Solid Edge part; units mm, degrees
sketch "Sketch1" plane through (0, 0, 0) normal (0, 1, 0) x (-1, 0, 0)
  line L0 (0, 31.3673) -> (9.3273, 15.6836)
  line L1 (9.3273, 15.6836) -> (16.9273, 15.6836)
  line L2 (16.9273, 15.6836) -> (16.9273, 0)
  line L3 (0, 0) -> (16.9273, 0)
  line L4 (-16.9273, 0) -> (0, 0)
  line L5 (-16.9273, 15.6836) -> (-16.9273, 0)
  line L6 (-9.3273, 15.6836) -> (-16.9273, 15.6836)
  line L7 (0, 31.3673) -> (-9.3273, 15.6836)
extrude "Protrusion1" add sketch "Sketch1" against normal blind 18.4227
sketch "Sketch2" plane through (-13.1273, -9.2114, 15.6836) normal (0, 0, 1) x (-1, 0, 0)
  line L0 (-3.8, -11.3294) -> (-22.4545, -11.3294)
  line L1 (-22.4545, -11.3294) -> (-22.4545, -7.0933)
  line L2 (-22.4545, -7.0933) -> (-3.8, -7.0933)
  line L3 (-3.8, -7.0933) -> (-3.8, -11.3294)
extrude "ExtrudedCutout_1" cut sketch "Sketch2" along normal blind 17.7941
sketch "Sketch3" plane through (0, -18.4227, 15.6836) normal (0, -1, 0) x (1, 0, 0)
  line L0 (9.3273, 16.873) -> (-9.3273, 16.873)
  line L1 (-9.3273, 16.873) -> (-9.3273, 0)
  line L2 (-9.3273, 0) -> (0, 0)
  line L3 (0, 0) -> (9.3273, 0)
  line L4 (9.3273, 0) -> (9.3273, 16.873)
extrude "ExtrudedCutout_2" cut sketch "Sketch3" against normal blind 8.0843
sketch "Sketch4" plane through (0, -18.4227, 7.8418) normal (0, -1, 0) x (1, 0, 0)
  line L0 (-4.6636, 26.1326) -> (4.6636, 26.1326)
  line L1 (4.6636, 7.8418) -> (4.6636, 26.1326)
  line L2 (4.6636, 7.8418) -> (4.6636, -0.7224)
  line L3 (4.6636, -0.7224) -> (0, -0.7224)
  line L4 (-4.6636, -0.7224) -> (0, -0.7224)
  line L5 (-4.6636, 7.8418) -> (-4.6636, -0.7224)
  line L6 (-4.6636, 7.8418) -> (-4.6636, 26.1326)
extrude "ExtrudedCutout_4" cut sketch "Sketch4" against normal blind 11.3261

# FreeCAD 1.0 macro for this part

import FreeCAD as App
import Part
import Sketcher
Q = App.Units.Quantity

doc = App.newDocument("Part")
body = doc.addObject("PartDesign::Body", "Body")

# Sketch on XZ plane
sketch1 = body.newObject("Sketcher::SketchObject", "Sketch")
sketch1.AttachmentSupport = (doc.getObject("XZ_Plane"), [""])
sketch1.MapMode = "FlatFace"
sketch1.addGeometry(Part.LineSegment(App.Vector(-9, 16, 0), App.Vector(0, 31, 0)), False)
sketch1.addGeometry(Part.LineSegment(App.Vector(0, 31, 0), App.Vector(9, 16, 0)), False)
sketch1.addGeometry(Part.LineSegment(App.Vector(9, 16, 0), App.Vector(17, 16, 0)), False)
sketch1.addGeometry(Part.LineSegment(App.Vector(17, 16, 0), App.Vector(17, 0, 0)), False)
sketch1.addGeometry(Part.LineSegment(App.Vector(17, 0, 0), App.Vector(-17, 0, 0)), False)
sketch1.addGeometry(Part.LineSegment(App.Vector(-17, 0, 0), App.Vector(-17, 16, 0)), False)
sketch1.addGeometry(Part.LineSegment(App.Vector(-17, 16, 0), App.Vector(-9, 16, 0)), False)
sketch1.addConstraint(Sketcher.Constraint("Coincident", 0, 2, 1, 1))
sketch1.addConstraint(Sketcher.Constraint("Coincident", 1, 2, 2, 1))
sketch1.addConstraint(Sketcher.Constraint("Coincident", 2, 2, 3, 1))
sketch1.addConstraint(Sketcher.Constraint("Coincident", 3, 2, 4, 1))
sketch1.addConstraint(Sketcher.Constraint("Coincident", 4, 2, 5, 1))
sketch1.addConstraint(Sketcher.Constraint("Coincident", 5, 2, 6, 1))
sketch1.addConstraint(Sketcher.Constraint("Coincident", 6, 2, 0, 1))
sketch1.addConstraint(Sketcher.Constraint("Horizontal", 2))
sketch1.addConstraint(Sketcher.Constraint("Vertical", 3))
sketch1.addConstraint(Sketcher.Constraint("Horizontal", 4))
sketch1.addConstraint(Sketcher.Constraint("Vertical", 5))
sketch1.addConstraint(Sketcher.Constraint("Horizontal", 6))
sketch1.addConstraint(Sketcher.Constraint("Symmetric", 3, 2, 4, 2, -1, 1))
sketch1.addConstraint(Sketcher.Constraint("Symmetric", 1, 2, 6, 2, -2))
sketch1.addConstraint(Sketcher.Constraint("PointOnObject", 0, 2, -2))
sketch1.addConstraint(Sketcher.Constraint("DistanceX", 2, 1, 2, 2, 7.6))
sketch1.addConstraint(Sketcher.Constraint("Angle", 0, Q("59.2595 deg")))
sketch1.addConstraint(Sketcher.Constraint("DistanceX", 4, 2, 4, 1, 33.8546))
sketch1.addConstraint(Sketcher.Constraint("DistanceY", 3, 2, 3, 1, 15.6836))
pad1 = body.newObject("PartDesign::Pad", "Pad")
pad1.Profile = sketch1
pad1.Length = 18.4227

# Sketch on XY plane
sketch2 = body.newObject("Sketcher::SketchObject", "Sketch001")
sketch2.AttachmentSupport = (doc.getObject("XY_Plane"), [""])
sketch2.MapMode = "FlatFace"
sketch2.AttachmentOffset = App.Placement(App.Vector(0, 0, 15.6836), App.Rotation())
sketch2.addGeometry(Part.LineSegment(App.Vector(9.3, 2.1, 0), App.Vector(-9.3, 2.1, 0)), False)
sketch2.addGeometry(Part.LineSegment(App.Vector(-9.3, 2.1, 0), App.Vector(-9.3, -2.1, 0)), False)
sketch2.addGeometry(Part.LineSegment(App.Vector(-9.3, -2.1, 0), App.Vector(9.3, -2.1, 0)), False)
sketch2.addGeometry(Part.LineSegment(App.Vector(9.3, -2.1, 0), App.Vector(9.3, 2.1, 0)), False)
sketch2.addConstraint(Sketcher.Constraint("Coincident", 0, 2, 1, 1))
sketch2.addConstraint(Sketcher.Constraint("Coincident", 1, 2, 2, 1))
sketch2.addConstraint(Sketcher.Constraint("Coincident", 2, 2, 3, 1))
sketch2.addConstraint(Sketcher.Constraint("Coincident", 3, 2, 0, 1))
sketch2.addConstraint(Sketcher.Constraint("Horizontal", 0))
sketch2.addConstraint(Sketcher.Constraint("Vertical", 1))
sketch2.addConstraint(Sketcher.Constraint("Horizontal", 2))
sketch2.addConstraint(Sketcher.Constraint("Vertical", 3))
sketch2.addConstraint(Sketcher.Constraint("Symmetric", 0, 2, 2, 2, -1, 1))
sketch2.addConstraint(Sketcher.Constraint("DistanceY", 1, 2, 1, 1, 4.236))
sketch2.addConstraint(Sketcher.Constraint("DistanceX", 0, 2, 0, 1, 18.6545))
pocket1 = body.newObject("PartDesign::Pocket", "Pocket")
pocket1.Profile = sketch2
pocket1.Length = 17.7941
pocket1.Reversed = True

# Sketch on XZ plane
sketch3 = body.newObject("Sketcher::SketchObject", "Sketch002")
sketch3.AttachmentSupport = (doc.getObject("XZ_Plane"), [""])
sketch3.MapMode = "FlatFace"
sketch3.AttachmentOffset = App.Placement(App.Vector(0, 0, 18.4227), App.Rotation())
sketch3.addGeometry(Part.LineSegment(App.Vector(9, 16, 0), App.Vector(9, 33, 0)), False)
sketch3.addGeometry(Part.LineSegment(App.Vector(9, 33, 0), App.Vector(-9, 33, 0)), False)
sketch3.addGeometry(Part.LineSegment(App.Vector(-9, 33, 0), App.Vector(-9, 16, 0)), False)
sketch3.addGeometry(Part.LineSegment(App.Vector(-9, 16, 0), App.Vector(9, 16, 0)), False)
sketch3.addConstraint(Sketcher.Constraint("Coincident", 0, 2, 1, 1))
sketch3.addConstraint(Sketcher.Constraint("Coincident", 1, 2, 2, 1))
sketch3.addConstraint(Sketcher.Constraint("Coincident", 2, 2, 3, 1))
sketch3.addConstraint(Sketcher.Constraint("Coincident", 3, 2, 0, 1))
sketch3.addConstraint(Sketcher.Constraint("Vertical", 0))
sketch3.addConstraint(Sketcher.Constraint("Horizontal", 1))
sketch3.addConstraint(Sketcher.Constraint("Vertical", 2))
sketch3.addConstraint(Sketcher.Constraint("Horizontal", 3))
sketch3.addConstraint(Sketcher.Constraint("DistanceY", 0, 1, 0, 2, 16.873))
sketch3.addConstraint(Sketcher.Constraint("DistanceX", 1, 2, 1, 1, 18.6546))
sketch3.addConstraint(Sketcher.Constraint("DistanceX", -1, 1, 0, 2, 9.3273))
sketch3.addConstraint(Sketcher.Constraint("DistanceY", -1, 1, 0, 2, 32.5566))
pocket2 = body.newObject("PartDesign::Pocket", "Pocket001")
pocket2.Profile = sketch3
pocket2.Length = 8.0843

# Sketch on XZ plane
sketch4 = body.newObject("Sketcher::SketchObject", "Sketch003")
sketch4.AttachmentSupport = (doc.getObject("XZ_Plane"), [""])
sketch4.MapMode = "FlatFace"
sketch4.AttachmentOffset = App.Placement(App.Vector(0, 0, 18.4227), App.Rotation())
sketch4.addGeometry(Part.LineSegment(App.Vector(5, 34, 0), App.Vector(-5, 34, 0)), False)
sketch4.addGeometry(Part.LineSegment(App.Vector(-5, 34, 0), App.Vector(-5, 7, 0)), False)
sketch4.addGeometry(Part.LineSegment(App.Vector(-5, 7, 0), App.Vector(5, 7, 0)), False)
sketch4.addGeometry(Part.LineSegment(App.Vector(5, 7, 0), App.Vector(5, 34, 0)), False)
sketch4.addConstraint(Sketcher.Constraint("Coincident", 0, 2, 1, 1))
sketch4.addConstraint(Sketcher.Constraint("Coincident", 1, 2, 2, 1))
sketch4.addConstraint(Sketcher.Constraint("Coincident", 2, 2, 3, 1))
sketch4.addConstraint(Sketcher.Constraint("Coincident", 3, 2, 0, 1))
sketch4.addConstraint(Sketcher.Constraint("Horizontal", 0))
sketch4.addConstraint(Sketcher.Constraint("Vertical", 1))
sketch4.addConstraint(Sketcher.Constraint("Horizontal", 2))
sketch4.addConstraint(Sketcher.Constraint("Vertical", 3))
sketch4.addConstraint(Sketcher.Constraint("DistanceY", 1, 2, 1, 1, 26.855))
sketch4.addConstraint(Sketcher.Constraint("DistanceX", 0, 2, 0, 1, 9.3272))
sketch4.addConstraint(Sketcher.Constraint("DistanceX", 0, 2, -1, 1, 4.6636))
sketch4.addConstraint(Sketcher.Constraint("DistanceY", -1, 1, 0, 2, 33.9744))
pocket3 = body.newObject("PartDesign::Pocket", "Pocket002")
pocket3.Profile = sketch4
pocket3.Length = 11.3261

doc.recompute()
